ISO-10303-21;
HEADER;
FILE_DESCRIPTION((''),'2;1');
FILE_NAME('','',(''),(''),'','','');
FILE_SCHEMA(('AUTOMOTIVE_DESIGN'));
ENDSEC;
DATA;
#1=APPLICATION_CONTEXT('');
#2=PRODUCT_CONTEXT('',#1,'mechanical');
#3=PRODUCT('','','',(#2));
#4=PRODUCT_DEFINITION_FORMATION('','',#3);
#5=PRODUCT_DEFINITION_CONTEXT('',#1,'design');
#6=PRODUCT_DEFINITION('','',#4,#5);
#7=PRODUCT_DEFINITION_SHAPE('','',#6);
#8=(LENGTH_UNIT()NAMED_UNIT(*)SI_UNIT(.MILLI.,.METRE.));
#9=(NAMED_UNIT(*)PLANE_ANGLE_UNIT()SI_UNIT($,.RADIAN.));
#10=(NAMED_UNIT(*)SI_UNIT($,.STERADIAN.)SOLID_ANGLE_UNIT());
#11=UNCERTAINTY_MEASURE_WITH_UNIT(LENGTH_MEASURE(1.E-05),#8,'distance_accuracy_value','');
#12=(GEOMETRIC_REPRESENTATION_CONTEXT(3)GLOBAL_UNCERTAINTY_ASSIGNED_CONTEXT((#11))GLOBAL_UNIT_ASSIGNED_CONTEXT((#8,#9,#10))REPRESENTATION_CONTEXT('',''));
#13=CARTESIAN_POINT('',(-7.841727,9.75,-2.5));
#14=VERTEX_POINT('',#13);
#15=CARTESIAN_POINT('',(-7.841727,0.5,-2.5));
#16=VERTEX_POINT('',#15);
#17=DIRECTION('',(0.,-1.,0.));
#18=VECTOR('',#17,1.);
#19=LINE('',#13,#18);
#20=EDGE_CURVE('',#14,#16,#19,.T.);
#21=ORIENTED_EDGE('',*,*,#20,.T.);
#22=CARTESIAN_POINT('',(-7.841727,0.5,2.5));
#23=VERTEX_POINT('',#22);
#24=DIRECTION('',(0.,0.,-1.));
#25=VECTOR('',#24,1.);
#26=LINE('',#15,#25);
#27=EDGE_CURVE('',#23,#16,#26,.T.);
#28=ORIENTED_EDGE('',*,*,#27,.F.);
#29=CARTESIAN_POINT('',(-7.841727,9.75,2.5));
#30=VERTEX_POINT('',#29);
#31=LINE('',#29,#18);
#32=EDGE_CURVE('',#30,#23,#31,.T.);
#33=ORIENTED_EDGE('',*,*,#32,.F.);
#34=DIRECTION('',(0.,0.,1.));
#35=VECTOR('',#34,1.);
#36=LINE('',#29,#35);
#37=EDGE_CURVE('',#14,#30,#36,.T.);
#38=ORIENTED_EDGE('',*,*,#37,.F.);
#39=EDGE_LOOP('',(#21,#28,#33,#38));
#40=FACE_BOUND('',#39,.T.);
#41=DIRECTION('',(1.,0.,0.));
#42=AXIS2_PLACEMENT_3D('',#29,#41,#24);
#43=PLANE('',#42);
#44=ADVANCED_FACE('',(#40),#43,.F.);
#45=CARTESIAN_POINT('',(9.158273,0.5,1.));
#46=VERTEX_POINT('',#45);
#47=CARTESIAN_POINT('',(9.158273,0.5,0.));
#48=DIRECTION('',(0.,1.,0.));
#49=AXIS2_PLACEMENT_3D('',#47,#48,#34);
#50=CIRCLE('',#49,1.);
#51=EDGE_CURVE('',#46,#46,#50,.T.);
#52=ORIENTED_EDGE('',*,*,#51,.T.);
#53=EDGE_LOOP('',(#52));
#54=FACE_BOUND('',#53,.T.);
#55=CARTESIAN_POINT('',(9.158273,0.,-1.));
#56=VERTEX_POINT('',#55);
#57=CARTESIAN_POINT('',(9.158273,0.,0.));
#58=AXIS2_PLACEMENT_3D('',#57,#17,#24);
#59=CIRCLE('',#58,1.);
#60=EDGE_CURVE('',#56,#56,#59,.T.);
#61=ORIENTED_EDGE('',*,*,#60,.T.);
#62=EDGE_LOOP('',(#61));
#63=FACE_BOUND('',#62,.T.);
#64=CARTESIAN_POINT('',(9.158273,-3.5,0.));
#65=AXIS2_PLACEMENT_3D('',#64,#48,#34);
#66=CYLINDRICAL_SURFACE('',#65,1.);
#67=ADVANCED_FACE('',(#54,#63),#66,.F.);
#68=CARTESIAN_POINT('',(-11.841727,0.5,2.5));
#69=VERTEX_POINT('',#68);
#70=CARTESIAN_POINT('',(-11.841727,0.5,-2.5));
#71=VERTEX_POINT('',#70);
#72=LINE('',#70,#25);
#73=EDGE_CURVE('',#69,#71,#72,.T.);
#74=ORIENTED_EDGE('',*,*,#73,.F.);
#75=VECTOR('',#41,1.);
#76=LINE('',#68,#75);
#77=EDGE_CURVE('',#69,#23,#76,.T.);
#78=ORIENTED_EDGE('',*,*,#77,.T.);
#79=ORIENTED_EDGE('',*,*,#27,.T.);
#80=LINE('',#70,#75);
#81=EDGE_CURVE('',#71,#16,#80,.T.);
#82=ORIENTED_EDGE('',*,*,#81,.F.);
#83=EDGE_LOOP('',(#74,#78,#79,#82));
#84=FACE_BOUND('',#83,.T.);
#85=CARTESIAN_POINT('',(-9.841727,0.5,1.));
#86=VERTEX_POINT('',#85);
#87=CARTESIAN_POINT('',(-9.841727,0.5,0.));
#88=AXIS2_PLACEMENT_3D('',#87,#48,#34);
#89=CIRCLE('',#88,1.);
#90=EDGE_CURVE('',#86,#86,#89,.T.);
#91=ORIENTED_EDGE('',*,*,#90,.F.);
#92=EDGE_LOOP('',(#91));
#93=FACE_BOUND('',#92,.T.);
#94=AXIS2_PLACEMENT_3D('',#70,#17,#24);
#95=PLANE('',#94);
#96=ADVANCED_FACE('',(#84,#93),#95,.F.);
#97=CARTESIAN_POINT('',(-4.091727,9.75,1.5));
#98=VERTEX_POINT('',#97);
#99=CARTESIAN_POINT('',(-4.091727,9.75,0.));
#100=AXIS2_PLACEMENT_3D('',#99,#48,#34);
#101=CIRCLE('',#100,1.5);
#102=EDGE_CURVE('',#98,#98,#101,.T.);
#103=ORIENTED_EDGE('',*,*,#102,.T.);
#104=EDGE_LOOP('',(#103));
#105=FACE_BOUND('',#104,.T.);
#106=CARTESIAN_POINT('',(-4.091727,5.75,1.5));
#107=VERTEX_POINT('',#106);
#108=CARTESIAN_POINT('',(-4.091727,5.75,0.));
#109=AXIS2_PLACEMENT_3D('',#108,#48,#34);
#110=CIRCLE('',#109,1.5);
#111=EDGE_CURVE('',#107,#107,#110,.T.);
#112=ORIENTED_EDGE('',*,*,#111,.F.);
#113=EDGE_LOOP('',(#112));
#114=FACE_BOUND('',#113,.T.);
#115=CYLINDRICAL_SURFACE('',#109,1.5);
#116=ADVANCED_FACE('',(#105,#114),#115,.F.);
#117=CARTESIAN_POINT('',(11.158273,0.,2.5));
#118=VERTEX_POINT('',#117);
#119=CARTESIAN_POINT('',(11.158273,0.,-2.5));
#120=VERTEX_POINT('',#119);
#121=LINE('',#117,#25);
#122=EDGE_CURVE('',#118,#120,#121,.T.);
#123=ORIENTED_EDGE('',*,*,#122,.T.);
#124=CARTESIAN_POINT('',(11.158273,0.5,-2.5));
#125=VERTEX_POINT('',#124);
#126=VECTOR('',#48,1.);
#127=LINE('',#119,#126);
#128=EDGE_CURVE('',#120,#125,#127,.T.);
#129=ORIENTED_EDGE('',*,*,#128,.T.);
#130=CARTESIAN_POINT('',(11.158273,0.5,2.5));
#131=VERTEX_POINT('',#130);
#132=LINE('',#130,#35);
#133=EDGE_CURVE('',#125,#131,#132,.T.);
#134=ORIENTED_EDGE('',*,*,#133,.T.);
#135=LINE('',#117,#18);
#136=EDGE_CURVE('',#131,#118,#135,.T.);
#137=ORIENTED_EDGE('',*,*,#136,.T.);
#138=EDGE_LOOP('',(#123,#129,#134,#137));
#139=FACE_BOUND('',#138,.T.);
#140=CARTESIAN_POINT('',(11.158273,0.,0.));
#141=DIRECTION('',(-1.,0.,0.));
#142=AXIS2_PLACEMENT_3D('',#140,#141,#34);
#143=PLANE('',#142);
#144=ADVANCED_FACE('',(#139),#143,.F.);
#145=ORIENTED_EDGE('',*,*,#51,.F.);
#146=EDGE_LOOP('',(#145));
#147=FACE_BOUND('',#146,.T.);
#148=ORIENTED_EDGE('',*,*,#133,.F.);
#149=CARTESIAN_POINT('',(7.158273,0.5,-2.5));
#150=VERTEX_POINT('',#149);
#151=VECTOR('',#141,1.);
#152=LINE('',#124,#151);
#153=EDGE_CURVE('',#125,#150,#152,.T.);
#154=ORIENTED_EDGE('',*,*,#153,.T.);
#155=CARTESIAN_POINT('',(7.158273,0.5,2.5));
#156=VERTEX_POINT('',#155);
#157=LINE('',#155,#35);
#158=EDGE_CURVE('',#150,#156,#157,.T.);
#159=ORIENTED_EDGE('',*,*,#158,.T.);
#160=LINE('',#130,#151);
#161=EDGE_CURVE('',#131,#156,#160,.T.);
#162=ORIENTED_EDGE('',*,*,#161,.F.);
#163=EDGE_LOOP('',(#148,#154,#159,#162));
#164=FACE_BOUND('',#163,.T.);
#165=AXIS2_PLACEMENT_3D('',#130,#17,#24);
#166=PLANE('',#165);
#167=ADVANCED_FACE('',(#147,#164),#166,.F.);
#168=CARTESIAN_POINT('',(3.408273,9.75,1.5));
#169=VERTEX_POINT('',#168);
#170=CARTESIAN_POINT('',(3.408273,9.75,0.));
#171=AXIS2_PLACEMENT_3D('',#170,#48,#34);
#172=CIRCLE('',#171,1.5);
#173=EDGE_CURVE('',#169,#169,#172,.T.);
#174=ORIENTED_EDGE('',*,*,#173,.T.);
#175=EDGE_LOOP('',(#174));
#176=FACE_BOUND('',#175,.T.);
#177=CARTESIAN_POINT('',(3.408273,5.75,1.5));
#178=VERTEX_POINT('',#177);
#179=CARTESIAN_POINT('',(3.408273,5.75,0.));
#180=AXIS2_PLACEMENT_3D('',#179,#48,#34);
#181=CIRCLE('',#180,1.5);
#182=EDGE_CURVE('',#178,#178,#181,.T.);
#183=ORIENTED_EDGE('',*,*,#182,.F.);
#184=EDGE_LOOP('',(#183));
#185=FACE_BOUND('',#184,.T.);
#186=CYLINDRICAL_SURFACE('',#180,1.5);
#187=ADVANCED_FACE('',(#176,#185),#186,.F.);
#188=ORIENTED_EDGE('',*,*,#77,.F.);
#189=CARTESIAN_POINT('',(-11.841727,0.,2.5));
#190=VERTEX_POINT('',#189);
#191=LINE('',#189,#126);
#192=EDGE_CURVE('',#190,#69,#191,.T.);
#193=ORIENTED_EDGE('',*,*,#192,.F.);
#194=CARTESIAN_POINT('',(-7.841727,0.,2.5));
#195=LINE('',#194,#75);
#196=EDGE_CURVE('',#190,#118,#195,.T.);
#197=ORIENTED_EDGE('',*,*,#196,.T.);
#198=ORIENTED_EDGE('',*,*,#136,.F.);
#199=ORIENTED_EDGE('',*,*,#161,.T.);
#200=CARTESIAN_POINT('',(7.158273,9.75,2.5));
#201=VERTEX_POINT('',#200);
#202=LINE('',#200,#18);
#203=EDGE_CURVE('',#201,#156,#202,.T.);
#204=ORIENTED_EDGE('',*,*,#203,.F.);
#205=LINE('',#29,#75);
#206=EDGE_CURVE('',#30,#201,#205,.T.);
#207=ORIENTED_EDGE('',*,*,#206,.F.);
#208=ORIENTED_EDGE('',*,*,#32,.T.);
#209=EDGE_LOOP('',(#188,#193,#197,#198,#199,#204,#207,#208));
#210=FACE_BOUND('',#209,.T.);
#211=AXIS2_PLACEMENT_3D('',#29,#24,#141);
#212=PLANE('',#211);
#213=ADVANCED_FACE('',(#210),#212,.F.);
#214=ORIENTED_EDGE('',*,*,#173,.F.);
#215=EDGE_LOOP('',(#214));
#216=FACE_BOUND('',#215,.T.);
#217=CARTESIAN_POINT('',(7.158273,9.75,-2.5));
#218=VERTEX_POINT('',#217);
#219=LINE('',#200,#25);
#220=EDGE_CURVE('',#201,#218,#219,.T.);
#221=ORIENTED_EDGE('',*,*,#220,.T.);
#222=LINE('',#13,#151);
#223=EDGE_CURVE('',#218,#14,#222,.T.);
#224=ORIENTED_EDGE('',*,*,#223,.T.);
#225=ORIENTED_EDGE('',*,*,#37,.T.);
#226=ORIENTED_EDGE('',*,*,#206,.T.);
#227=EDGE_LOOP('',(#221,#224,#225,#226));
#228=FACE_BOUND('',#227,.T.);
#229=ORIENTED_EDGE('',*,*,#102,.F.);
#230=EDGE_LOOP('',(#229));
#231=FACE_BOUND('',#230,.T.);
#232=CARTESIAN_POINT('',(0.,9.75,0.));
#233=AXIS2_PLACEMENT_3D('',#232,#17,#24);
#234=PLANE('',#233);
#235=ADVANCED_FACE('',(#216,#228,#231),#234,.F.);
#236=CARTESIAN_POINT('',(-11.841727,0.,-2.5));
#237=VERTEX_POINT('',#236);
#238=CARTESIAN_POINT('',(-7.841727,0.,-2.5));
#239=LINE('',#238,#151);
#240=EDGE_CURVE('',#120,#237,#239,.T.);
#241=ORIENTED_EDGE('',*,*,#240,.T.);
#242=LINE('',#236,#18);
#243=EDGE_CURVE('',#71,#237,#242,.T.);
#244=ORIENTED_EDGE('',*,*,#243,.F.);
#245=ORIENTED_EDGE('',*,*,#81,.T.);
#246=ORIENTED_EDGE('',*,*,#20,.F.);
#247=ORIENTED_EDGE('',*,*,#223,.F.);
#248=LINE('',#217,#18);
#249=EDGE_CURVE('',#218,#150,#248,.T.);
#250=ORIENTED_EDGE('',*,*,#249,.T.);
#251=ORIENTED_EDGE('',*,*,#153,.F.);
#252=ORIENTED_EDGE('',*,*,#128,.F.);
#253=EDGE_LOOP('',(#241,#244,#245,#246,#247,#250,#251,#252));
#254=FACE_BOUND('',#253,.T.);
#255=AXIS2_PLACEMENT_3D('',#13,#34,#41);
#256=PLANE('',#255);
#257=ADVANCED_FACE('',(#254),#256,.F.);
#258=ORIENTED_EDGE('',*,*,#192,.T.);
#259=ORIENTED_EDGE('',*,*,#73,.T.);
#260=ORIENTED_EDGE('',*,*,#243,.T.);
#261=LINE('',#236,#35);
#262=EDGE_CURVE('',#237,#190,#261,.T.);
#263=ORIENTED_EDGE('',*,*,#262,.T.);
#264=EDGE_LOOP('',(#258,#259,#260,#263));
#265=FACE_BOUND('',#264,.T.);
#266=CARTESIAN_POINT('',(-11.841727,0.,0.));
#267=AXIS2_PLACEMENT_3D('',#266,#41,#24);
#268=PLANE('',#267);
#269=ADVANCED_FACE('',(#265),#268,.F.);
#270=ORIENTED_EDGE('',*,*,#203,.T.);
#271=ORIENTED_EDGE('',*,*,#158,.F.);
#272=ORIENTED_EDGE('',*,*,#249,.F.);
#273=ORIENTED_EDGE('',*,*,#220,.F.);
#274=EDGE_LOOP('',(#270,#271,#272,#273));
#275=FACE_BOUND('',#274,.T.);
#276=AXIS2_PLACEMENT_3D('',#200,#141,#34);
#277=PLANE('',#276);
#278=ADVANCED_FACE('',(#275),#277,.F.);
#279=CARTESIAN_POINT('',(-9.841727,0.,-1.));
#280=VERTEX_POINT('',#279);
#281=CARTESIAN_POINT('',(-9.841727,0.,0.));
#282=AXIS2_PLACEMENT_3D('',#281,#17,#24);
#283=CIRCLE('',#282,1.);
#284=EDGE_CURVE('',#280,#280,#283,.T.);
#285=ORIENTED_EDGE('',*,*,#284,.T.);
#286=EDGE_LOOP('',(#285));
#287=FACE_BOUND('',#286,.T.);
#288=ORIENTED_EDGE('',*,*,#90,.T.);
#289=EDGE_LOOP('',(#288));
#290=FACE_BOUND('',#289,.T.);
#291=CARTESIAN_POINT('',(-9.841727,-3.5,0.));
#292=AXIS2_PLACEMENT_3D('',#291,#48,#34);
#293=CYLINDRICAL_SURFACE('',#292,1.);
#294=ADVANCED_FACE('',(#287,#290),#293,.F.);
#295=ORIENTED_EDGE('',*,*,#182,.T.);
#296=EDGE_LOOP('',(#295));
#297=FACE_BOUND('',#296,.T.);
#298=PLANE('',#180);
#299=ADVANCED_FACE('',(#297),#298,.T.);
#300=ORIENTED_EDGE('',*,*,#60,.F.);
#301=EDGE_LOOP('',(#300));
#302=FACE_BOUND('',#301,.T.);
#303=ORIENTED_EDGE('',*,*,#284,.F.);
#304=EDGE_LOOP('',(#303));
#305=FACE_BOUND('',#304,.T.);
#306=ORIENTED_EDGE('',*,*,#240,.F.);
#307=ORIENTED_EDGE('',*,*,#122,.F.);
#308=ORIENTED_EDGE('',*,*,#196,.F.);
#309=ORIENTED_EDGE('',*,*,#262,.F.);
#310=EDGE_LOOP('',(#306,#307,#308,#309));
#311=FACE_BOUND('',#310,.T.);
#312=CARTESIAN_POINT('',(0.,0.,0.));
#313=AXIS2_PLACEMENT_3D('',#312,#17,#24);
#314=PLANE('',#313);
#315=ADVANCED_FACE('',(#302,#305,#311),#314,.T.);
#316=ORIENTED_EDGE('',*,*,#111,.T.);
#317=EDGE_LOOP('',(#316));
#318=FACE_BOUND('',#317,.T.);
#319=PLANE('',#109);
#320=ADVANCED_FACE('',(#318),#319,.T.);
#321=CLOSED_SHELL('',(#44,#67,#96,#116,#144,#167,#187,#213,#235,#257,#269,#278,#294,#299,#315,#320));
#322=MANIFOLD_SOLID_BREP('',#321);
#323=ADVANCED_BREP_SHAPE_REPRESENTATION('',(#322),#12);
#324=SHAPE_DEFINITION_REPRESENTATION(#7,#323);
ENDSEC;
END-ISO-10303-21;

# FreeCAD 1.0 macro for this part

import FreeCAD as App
import Part
import Sketcher
from FreeCAD import Vector

doc = App.newDocument("Part")
body = doc.addObject("PartDesign::Body", "Body")

sketch1 = doc.addObject("Sketcher::SketchObject", "Sketch")
body.addObject(sketch1)
sketch1.AttachmentSupport = (doc.XZ_Plane, [""])
sketch1.MapMode = "FlatFace"
sketch1.addGeometry(Part.LineSegment(Vector(-7.841727, -2.5, 0), Vector(-7.841727, 2.5, 0)), False)
sketch1.addGeometry(Part.LineSegment(Vector(-7.841727, 2.5, 0), Vector(7.158273, 2.5, 0)), False)
sketch1.addGeometry(Part.LineSegment(Vector(7.158273, 2.5, 0), Vector(7.158273, -2.5, 0)), False)
sketch1.addGeometry(Part.LineSegment(Vector(7.158273, -2.5, 0), Vector(-7.841727, -2.5, 0)), False)
sketch1.addConstraint(Sketcher.Constraint("Coincident", 0, 2, 1, 1))
sketch1.addConstraint(Sketcher.Constraint("Coincident", 1, 2, 2, 1))
sketch1.addConstraint(Sketcher.Constraint("Coincident", 2, 2, 3, 1))
sketch1.addConstraint(Sketcher.Constraint("Coincident", 3, 2, 0, 1))
sketch1.addConstraint(Sketcher.Constraint("Vertical", 0))
sketch1.addConstraint(Sketcher.Constraint("Horizontal", 1))
sketch1.addConstraint(Sketcher.Constraint("Vertical", 2))
sketch1.addConstraint(Sketcher.Constraint("Horizontal", 3))
sketch1.addConstraint(Sketcher.Constraint("DistanceX", 1, 1, 1, 2, 15.0))
sketch1.addConstraint(Sketcher.Constraint("DistanceY", 0, 1, 0, 2, 5.0))
sketch1.addConstraint(Sketcher.Constraint("DistanceY", -1, 1, 0, 2, 2.5))
sketch1.addConstraint(Sketcher.Constraint("DistanceX", 0, 2, -1, 1, 7.841727))
pad1 = doc.addObject("PartDesign::Pad", "Pad")
body.addObject(pad1)
pad1.Profile = sketch1
pad1.Length = 9.75
pad1.Reversed = True

sketch2 = doc.addObject("Sketcher::SketchObject", "Sketch001")
body.addObject(sketch2)
sketch2.AttachmentSupport = (doc.XZ_Plane, [""])
sketch2.MapMode = "FlatFace"
sketch2.AttachmentOffset = App.Placement(Vector(0, 0, -9.75), App.Rotation())
sketch2.addGeometry(Part.Circle(Vector(-4.091727, 0, 0), Vector(0, 0, 1), 1.5), False)
sketch2.addGeometry(Part.Circle(Vector(3.408273, 0, 0), Vector(0, 0, 1), 1.5), False)
sketch2.addConstraint(Sketcher.Constraint("Equal", 0, 1))
sketch2.addConstraint(Sketcher.Constraint("PointOnObject", 0, 3, -1))
sketch2.addConstraint(Sketcher.Constraint("PointOnObject", 1, 3, -1))
sketch2.addConstraint(Sketcher.Constraint("Diameter", 0, 3.0))
sketch2.addConstraint(Sketcher.Constraint("DistanceX", 0, 3, 1, 3, 7.5))
sketch2.addConstraint(Sketcher.Constraint("DistanceX", 0, 3, -1, 1, 4.091727))
pocket1 = doc.addObject("PartDesign::Pocket", "Pocket")
body.addObject(pocket1)
pocket1.Profile = sketch2
pocket1.Length = 4
pocket1.Reversed = True

sketch3 = doc.addObject("Sketcher::SketchObject", "Sketch002")
body.addObject(sketch3)
sketch3.AttachmentSupport = (doc.YZ_Plane, [""])
sketch3.MapMode = "FlatFace"
sketch3.AttachmentOffset = App.Placement(Vector(0, 0, 7.158273), App.Rotation())
sketch3.addGeometry(Part.LineSegment(Vector(0.5, 2.5, 0), Vector(0, 2.5, 0)), False)
sketch3.addGeometry(Part.LineSegment(Vector(0, 2.5, 0), Vector(0, -2.5, 0)), False)
sketch3.addGeometry(Part.LineSegment(Vector(0, -2.5, 0), Vector(0.5, -2.5, 0)), False)
sketch3.addGeometry(Part.LineSegment(Vector(0.5, -2.5, 0), Vector(0.5, 2.5, 0)), False)
sketch3.addConstraint(Sketcher.Constraint("Coincident", 0, 2, 1, 1))
sketch3.addConstraint(Sketcher.Constraint("Coincident", 1, 2, 2, 1))
sketch3.addConstraint(Sketcher.Constraint("Coincident", 2, 2, 3, 1))
sketch3.addConstraint(Sketcher.Constraint("Coincident", 3, 2, 0, 1))
sketch3.addConstraint(Sketcher.Constraint("Horizontal", 0))
sketch3.addConstraint(Sketcher.Constraint("Vertical", 1))
sketch3.addConstraint(Sketcher.Constraint("Horizontal", 2))
sketch3.addConstraint(Sketcher.Constraint("Vertical", 3))
sketch3.addConstraint(Sketcher.Constraint("Symmetric", 0, 2, 1, 2, -1, 1))
sketch3.addConstraint(Sketcher.Constraint("DistanceY", 1, 2, 1, 1, 5.0))
sketch3.addConstraint(Sketcher.Constraint("DistanceX", 0, 2, 0, 1, 0.5))
pad2 = doc.addObject("PartDesign::Pad", "Pad001")
body.addObject(pad2)
pad2.Profile = sketch3
pad2.Length = 4

sketch4 = doc.addObject("Sketcher::SketchObject", "Sketch003")
body.addObject(sketch4)
sketch4.AttachmentSupport = (doc.YZ_Plane, [""])
sketch4.MapMode = "FlatFace"
sketch4.AttachmentOffset = App.Placement(Vector(0, 0, -7.841727), App.Rotation())
sketch4.addGeometry(Part.LineSegment(Vector(0.5, -2.5, 0), Vector(0, -2.5, 0)), False)
sketch4.addGeometry(Part.LineSegment(Vector(0, -2.5, 0), Vector(0, 2.5, 0)), False)
sketch4.addGeometry(Part.LineSegment(Vector(0, 2.5, 0), Vector(0.5, 2.5, 0)), False)
sketch4.addGeometry(Part.LineSegment(Vector(0.5, 2.5, 0), Vector(0.5, -2.5, 0)), False)
sketch4.addConstraint(Sketcher.Constraint("Coincident", 0, 2, 1, 1))
sketch4.addConstraint(Sketcher.Constraint("Coincident", 1, 2, 2, 1))
sketch4.addConstraint(Sketcher.Constraint("Coincident", 2, 2, 3, 1))
sketch4.addConstraint(Sketcher.Constraint("Coincident", 3, 2, 0, 1))
sketch4.addConstraint(Sketcher.Constraint("Horizontal", 0))
sketch4.addConstraint(Sketcher.Constraint("Vertical", 1))
sketch4.addConstraint(Sketcher.Constraint("Horizontal", 2))
sketch4.addConstraint(Sketcher.Constraint("Vertical", 3))
sketch4.addConstraint(Sketcher.Constraint("Symmetric", 0, 2, 1, 2, -1, 1))
sketch4.addConstraint(Sketcher.Constraint("DistanceY", 1, 1, 1, 2, 5.0))
sketch4.addConstraint(Sketcher.Constraint("DistanceX", 0, 2, 0, 1, 0.5))
pad3 = doc.addObject("PartDesign::Pad", "Pad002")
body.addObject(pad3)
pad3.Profile = sketch4
pad3.Length = 4
pad3.Reversed = True

sketch5 = doc.addObject("Sketcher::SketchObject", "Sketch004")
body.addObject(sketch5)
sketch5.AttachmentSupport = (doc.XZ_Plane, [""])
sketch5.MapMode = "FlatFace"
sketch5.AttachmentOffset = App.Placement(Vector(0, 0, -0.5), App.Rotation())
sketch5.addGeometry(Part.Circle(Vector(-9.841727, 0, 0), Vector(0, 0, 1), 1), False)
sketch5.addGeometry(Part.Circle(Vector(9.158273, 0, 0), Vector(0, 0, 1), 1), False)
sketch5.addConstraint(Sketcher.Constraint("Equal", 0, 1))
sketch5.addConstraint(Sketcher.Constraint("PointOnObject", 0, 3, -1))
sketch5.addConstraint(Sketcher.Constraint("PointOnObject", 1, 3, -1))
sketch5.addConstraint(Sketcher.Constraint("Diameter", 0, 2.0))
sketch5.addConstraint(Sketcher.Constraint("DistanceX", 0, 3, 1, 3, 19.0))
sketch5.addConstraint(Sketcher.Constraint("DistanceX", 0, 3, -1, 1, 9.841727))
pocket2 = doc.addObject("PartDesign::Pocket", "Pocket001")
body.addObject(pocket2)
pocket2.Profile = sketch5
pocket2.Length = 4
pocket2.Reversed = True

doc.recompute()
